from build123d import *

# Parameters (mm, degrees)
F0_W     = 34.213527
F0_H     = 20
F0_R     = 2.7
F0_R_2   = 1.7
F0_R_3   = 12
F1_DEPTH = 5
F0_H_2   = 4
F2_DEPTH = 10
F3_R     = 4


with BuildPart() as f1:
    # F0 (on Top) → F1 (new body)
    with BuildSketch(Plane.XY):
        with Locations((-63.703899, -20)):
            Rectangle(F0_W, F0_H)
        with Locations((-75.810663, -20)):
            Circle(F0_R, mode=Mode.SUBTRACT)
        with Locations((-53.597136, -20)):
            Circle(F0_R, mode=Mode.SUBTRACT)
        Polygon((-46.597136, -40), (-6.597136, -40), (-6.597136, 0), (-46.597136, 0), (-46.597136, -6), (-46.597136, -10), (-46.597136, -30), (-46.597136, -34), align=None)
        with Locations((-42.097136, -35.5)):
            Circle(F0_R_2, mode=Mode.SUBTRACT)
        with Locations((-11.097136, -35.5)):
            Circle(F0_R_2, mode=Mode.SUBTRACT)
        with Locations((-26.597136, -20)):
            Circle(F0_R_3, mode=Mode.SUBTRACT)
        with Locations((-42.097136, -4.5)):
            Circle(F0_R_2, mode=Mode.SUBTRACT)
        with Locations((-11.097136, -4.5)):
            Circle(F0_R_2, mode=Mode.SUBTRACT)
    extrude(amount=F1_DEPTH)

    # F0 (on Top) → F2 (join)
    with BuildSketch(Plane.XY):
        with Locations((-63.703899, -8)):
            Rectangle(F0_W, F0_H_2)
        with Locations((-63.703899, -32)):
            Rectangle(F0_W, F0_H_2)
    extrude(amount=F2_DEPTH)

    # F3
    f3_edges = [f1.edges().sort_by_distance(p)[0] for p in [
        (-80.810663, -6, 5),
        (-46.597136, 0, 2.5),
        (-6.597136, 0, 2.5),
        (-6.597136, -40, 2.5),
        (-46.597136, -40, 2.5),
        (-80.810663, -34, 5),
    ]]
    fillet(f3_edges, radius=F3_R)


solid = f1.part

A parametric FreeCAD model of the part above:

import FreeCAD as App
import Part
import Sketcher
from FreeCAD import Vector
Q = App.Units.Quantity


def edges_at(feature, points):
    """Names of the edges that pass closest to the given points."""
    edges = feature.Shape.Edges
    near = lambda p: min(range(len(edges)), key=lambda i: edges[i].distToShape(Part.Vertex(*p))[0])
    return sorted({f"Edge{near(p) + 1}" for p in points})


def add_polygon(sketch, points):
    """Adds a closed chain of lines whose ends are joined by coincident constraints."""
    first, n = sketch.GeometryCount, len(points)
    for a, b in zip(points, points[1:] + points[:1]):
        sketch.addGeometry(Part.LineSegment(App.Vector(*a, 0), App.Vector(*b, 0)), False)
    for i in range(n):
        sketch.addConstraint(Sketcher.Constraint("Coincident", first + i, 2, first + (i + 1) % n, 1))

doc = App.newDocument("Part")
params = doc.addObject("Spreadsheet::Sheet", "Params")
for row, (alias, value) in enumerate([
    ("sketch1_diameter", "24 mm"),
    ("sketch1_diameter2", "3.4 mm"),
    ("sketch1_diameter3", "5.4 mm"),
    ("sketch1_width", "40 mm"),
    ("sketch1_height", "20 mm"),
    ("pad1_length", "5 mm"),
    ("sketch2_height", "4 mm"),
    ("pad2_length", "10 mm"),
    ("fillet_radius", "4 mm"),
], start=1):
    params.set(f"A{row}", alias)
    params.set(f"B{row}", "=" + value)
    params.setAlias(f"B{row}", alias)

body = doc.addObject("PartDesign::Body", "Body")

# Sketch on XY plane
sketch1 = body.newObject("Sketcher::SketchObject", "Sketch")
sketch1.AttachmentSupport = (doc.getObject("XY_Plane"), [""])
sketch1.MapMode = "FlatFace"
add_polygon(sketch1, [(-80.8, -10), (-80.8, -30), (-46.6, -30), (-46.6, -40), (-6.6, -40), (-6.6, 0), (-46.6, 0), (-46.6, -10)])  # lines 0-7
sketch1.addGeometry(Part.Circle(Vector(-42.1, -35.5, 0), Vector(0, 0, 1), 1.7), False)  # 8
sketch1.addGeometry(Part.Circle(Vector(-11.1, -35.5, 0), Vector(0, 0, 1), 1.7), False)  # 9
sketch1.addGeometry(Part.Circle(Vector(-75.8, -20, 0), Vector(0, 0, 1), 2.7), False)  # 10
sketch1.addGeometry(Part.Circle(Vector(-53.6, -20, 0), Vector(0, 0, 1), 2.7), False)  # 11
sketch1.addGeometry(Part.Circle(Vector(-26.6, -20, 0), Vector(0, 0, 1), 12), False)  # 12
sketch1.addGeometry(Part.Circle(Vector(-42.1, -4.5, 0), Vector(0, 0, 1), 1.7), False)  # 13
sketch1.addGeometry(Part.Circle(Vector(-11.1, -4.5, 0), Vector(0, 0, 1), 1.7), False)  # 14
sketch1.addConstraint([
    Sketcher.Constraint("Vertical", 0),
    Sketcher.Constraint("Horizontal", 1),
    Sketcher.Constraint("Vertical", 2),
    Sketcher.Constraint("Horizontal", 3),
    Sketcher.Constraint("Vertical", 4),
    Sketcher.Constraint("Horizontal", 5),
    Sketcher.Constraint("Vertical", 6),
    Sketcher.Constraint("Horizontal", 7),
    Sketcher.Constraint("Equal", 8, 9),
    Sketcher.Constraint("Equal", 10, 11),
    Sketcher.Constraint("Equal", 9, 13),
    Sketcher.Constraint("Equal", 13, 14),
    Sketcher.Constraint("PointOnObject", 4, 2, -1),
    Sketcher.Constraint("Horizontal", 8, 3, 9, 3),
    Sketcher.Constraint("Horizontal", 10, 3, 11, 3),
    Sketcher.Constraint("Horizontal", 11, 3, 12, 3),
    Sketcher.Constraint("Horizontal", 13, 3, 14, 3),
    Sketcher.Constraint("Vertical", 8, 3, 13, 3),
    Sketcher.Constraint("Vertical", 9, 3, 14, 3),
    Sketcher.Constraint("Vertical", 2, 2, 5, 2),
    Sketcher.Constraint("Equal", 5, 4),
    Sketcher.Constraint("Equal", 2, 6),
    Sketcher.Constraint("Diameter", 12, Q("24 mm")),
    Sketcher.Constraint("Diameter", 8, Q("3.4 mm")),
    Sketcher.Constraint("Diameter", 10, Q("5.4 mm")),
    Sketcher.Constraint("DistanceX", 3, 1, 3, 2, Q("40 mm")),
    Sketcher.Constraint("DistanceY", 0, 2, 0, 1, Q("20 mm")),
    Sketcher.Constraint("DistanceY", 10, 3, -1, 1, Q("20 mm")),
    Sketcher.Constraint("DistanceX", 8, 3, 9, 3, Q("31 mm")),
    Sketcher.Constraint("DistanceX", 11, 3, 12, 3, Q("27 mm")),
    Sketcher.Constraint("DistanceY", 8, 3, 13, 3, Q("31 mm")),
    Sketcher.Constraint("DistanceX", 0, 2, 10, 3, Q("5 mm")),
    Sketcher.Constraint("DistanceX", 11, 3, 1, 2, Q("7 mm")),
    Sketcher.Constraint("DistanceY", 8, 3, -1, 1, Q("35.5 mm")),
    Sketcher.Constraint("DistanceX", 11, 3, 8, 3, Q("11.5 mm")),
    Sketcher.Constraint("DistanceX", 1, 1, 1, 2, Q("34.213527 mm")),
    Sketcher.Constraint("DistanceX", 8, 3, -1, 1, Q("42.097136 mm")),
])
sketch1.setExpression("Constraints[30]", "Params.sketch1_diameter")
sketch1.setExpression("Constraints[31]", "Params.sketch1_diameter2")
sketch1.setExpression("Constraints[32]", "Params.sketch1_diameter3")
sketch1.setExpression("Constraints[33]", "Params.sketch1_width")
sketch1.setExpression("Constraints[34]", "Params.sketch1_height")
pad1 = body.newObject("PartDesign::Pad", "Pad")
pad1.Profile = sketch1
pad1.setExpression("Length", "Params.pad1_length")

# Sketch on XY plane
sketch2 = body.newObject("Sketcher::SketchObject", "Sketch001")
sketch2.AttachmentSupport = (doc.getObject("XY_Plane"), [""])
sketch2.MapMode = "FlatFace"
add_polygon(sketch2, [(-80.8, -6), (-80.8, -10), (-46.6, -10), (-46.6, -6)])  # lines 0-3
add_polygon(sketch2, [(-80.8, -30), (-80.8, -34), (-46.6, -34), (-46.6, -30)])  # lines 4-7
sketch2.addConstraint([
    Sketcher.Constraint("Vertical", 0),
    Sketcher.Constraint("Horizontal", 1),
    Sketcher.Constraint("Vertical", 2),
    Sketcher.Constraint("Horizontal", 3),
    Sketcher.Constraint("Vertical", 4),
    Sketcher.Constraint("Horizontal", 5),
    Sketcher.Constraint("Vertical", 6),
    Sketcher.Constraint("Horizontal", 7),
    Sketcher.Constraint("Vertical", 3, 2, 4, 2),
    Sketcher.Constraint("Vertical", 2, 2, 5, 2),
    Sketcher.Constraint("Equal", 2, 4),
    Sketcher.Constraint("DistanceY", 0, 2, 0, 1, Q("4 mm")),
    Sketcher.Constraint("DistanceY", 0, 2, -1, 1, Q("10 mm")),
    Sketcher.Constraint("DistanceY", 4, 2, -1, 1, Q("34 mm")),
    Sketcher.Constraint("DistanceX", 1, 1, 1, 2, Q("34.213527 mm")),
    Sketcher.Constraint("DistanceX", 0, 2, -1, 1, Q("80.810663 mm")),
])
sketch2.setExpression("Constraints[19]", "Params.sketch2_height")
pad2 = body.newObject("PartDesign::Pad", "Pad001")
pad2.Profile = sketch2
pad2.setExpression("Length", "Params.pad2_length")
doc.recompute()

fillet = body.newObject("PartDesign::Fillet", "Fillet")
fillet.Base = (pad2, edges_at(pad2, [
    (-80.811, -6, 5),
    (-46.597, 0, 2.5),
    (-6.597, 0, 2.5),
    (-6.597, -40, 2.5),
    (-46.597, -40, 2.5),
    (-80.811, -34, 5),
]))
fillet.setExpression("Radius", "Params.fillet_radius")

doc.recompute()
